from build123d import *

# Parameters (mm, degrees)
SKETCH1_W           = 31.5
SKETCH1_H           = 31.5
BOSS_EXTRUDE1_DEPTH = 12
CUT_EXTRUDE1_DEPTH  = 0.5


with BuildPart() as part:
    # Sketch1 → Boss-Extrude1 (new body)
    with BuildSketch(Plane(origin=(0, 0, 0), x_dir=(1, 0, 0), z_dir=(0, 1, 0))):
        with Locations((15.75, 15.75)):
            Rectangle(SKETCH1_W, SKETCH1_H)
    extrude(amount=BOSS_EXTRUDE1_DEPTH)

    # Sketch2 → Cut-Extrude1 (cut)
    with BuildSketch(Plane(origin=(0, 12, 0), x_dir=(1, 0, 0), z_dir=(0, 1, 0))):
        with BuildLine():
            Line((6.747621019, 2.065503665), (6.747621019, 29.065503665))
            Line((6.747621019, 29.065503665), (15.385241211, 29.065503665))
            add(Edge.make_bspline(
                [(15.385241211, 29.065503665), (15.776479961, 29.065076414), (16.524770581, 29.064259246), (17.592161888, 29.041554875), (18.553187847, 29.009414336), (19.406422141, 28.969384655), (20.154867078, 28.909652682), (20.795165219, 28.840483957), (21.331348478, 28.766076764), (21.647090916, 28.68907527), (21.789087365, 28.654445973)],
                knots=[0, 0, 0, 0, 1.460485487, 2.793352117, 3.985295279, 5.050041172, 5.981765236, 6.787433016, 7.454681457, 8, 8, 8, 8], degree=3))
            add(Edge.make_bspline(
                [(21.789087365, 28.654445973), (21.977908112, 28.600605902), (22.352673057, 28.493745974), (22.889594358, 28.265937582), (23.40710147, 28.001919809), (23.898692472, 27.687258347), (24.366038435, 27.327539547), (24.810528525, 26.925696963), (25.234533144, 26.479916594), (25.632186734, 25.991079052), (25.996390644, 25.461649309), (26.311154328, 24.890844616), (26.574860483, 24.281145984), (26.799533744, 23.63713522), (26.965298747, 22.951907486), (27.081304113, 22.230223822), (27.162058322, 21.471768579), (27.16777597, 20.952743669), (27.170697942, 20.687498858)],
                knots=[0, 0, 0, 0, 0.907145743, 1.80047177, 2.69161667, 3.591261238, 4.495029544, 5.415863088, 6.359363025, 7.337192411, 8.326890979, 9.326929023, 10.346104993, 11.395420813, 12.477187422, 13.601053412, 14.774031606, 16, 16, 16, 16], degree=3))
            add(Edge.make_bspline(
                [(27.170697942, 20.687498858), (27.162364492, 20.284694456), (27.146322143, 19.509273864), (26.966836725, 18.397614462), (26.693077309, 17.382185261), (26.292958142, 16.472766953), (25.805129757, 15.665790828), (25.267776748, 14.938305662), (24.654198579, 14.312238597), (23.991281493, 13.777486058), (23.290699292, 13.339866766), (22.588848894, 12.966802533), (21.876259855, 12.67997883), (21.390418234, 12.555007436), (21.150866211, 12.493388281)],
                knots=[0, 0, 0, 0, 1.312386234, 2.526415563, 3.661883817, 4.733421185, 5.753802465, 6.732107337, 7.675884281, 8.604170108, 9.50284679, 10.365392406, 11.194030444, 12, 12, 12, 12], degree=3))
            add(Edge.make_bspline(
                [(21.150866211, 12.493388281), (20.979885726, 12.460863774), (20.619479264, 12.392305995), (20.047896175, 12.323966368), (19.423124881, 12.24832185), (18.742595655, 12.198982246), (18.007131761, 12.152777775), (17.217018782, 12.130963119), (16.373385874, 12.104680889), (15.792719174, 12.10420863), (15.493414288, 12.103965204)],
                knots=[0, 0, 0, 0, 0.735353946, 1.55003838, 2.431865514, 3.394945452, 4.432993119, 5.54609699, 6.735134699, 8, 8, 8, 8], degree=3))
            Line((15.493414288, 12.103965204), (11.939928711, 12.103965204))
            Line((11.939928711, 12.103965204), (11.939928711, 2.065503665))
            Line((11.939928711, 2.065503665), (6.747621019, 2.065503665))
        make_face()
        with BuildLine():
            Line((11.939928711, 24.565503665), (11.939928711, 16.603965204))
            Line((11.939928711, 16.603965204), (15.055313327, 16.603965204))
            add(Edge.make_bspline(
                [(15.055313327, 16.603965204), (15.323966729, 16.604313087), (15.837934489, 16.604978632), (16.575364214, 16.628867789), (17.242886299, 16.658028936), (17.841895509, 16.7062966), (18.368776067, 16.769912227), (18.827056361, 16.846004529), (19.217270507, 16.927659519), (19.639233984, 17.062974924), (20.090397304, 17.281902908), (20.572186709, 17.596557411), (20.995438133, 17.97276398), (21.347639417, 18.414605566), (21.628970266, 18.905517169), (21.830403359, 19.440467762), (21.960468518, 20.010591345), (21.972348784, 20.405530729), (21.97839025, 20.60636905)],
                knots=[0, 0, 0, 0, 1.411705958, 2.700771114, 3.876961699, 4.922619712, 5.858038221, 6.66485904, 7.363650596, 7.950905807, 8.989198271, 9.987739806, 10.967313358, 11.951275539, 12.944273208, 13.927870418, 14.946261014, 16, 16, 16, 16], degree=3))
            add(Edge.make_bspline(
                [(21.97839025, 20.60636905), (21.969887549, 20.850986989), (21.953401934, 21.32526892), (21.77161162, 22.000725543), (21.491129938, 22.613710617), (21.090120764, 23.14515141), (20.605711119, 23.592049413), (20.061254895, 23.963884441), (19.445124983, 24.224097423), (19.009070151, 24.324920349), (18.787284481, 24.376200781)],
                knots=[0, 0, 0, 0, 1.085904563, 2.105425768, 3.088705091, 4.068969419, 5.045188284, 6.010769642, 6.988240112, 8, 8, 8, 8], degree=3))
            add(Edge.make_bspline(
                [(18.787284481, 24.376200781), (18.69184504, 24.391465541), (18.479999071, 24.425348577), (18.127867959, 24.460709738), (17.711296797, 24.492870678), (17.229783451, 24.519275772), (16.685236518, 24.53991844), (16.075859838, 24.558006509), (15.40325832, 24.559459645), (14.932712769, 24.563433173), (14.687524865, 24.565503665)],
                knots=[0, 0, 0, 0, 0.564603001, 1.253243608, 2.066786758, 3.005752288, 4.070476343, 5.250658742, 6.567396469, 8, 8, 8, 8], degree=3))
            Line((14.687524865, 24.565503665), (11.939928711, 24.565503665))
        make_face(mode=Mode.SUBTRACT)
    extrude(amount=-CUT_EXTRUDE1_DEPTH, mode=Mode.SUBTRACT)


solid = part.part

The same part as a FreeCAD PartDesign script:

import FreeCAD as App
import Part
import Sketcher
Q = App.Units.Quantity


def add_polygon(sketch, points):
    """Adds a closed chain of lines whose ends are joined by coincident constraints."""
    first, n = sketch.GeometryCount, len(points)
    for a, b in zip(points, points[1:] + points[:1]):
        sketch.addGeometry(Part.LineSegment(App.Vector(*a, 0), App.Vector(*b, 0)), False)
    for i in range(n):
        sketch.addConstraint(Sketcher.Constraint("Coincident", first + i, 2, first + (i + 1) % n, 1))

doc = App.newDocument("Part")
body = doc.addObject("PartDesign::Body", "Body")

sketch1 = doc.addObject("Sketcher::SketchObject", "Sketch")
body.addObject(sketch1)
sketch1.AttachmentSupport = (doc.XZ_Plane, [""])
sketch1.MapMode = "FlatFace"
add_polygon(sketch1, [(0, -32), (0, 0), (32, 0), (32, -32)])
sketch1.addConstraint([
    Sketcher.Constraint("Vertical", 0),
    Sketcher.Constraint("Horizontal", 1),
    Sketcher.Constraint("Vertical", 2),
    Sketcher.Constraint("Horizontal", 3),
    Sketcher.Constraint("Coincident", 0, 2, -1, 1),
    Sketcher.Constraint("Equal", 3, 0),
    Sketcher.Constraint("DistanceX", 1, 1, 1, 2, Q("31.5 mm")),
])
pad1 = doc.addObject("PartDesign::Pad", "Pad")
body.addObject(pad1)
pad1.Profile = sketch1
pad1.Length = 12
pad1.Reversed = True

sketch2 = doc.addObject("Sketcher::SketchObject", "Sketch001")
body.addObject(sketch2)
sketch2.AttachmentSupport = (doc.XZ_Plane, [""])
sketch2.MapMode = "FlatFace"
sketch2.AttachmentOffset = App.Placement(App.Vector(0, 0, -12), App.Rotation())
sketch2.addGeometry([
    Part.LineSegment(App.Vector(6.747621, -29.065504, 0), App.Vector(6.747621, -2.065504, 0)),
    Part.LineSegment(App.Vector(6.747621, -2.065504, 0), App.Vector(11.939929, -2.065504, 0)),
    Part.LineSegment(App.Vector(11.939929, -2.065504, 0), App.Vector(11.939929, -12.103965, 0)),
    Part.LineSegment(App.Vector(11.939929, -12.103965, 0), App.Vector(15.493414, -12.103965, 0)),
    Part.BSplineCurve([App.Vector(21.150866, -12.493388, 0), App.Vector(20.979886, -12.460864, 0), App.Vector(20.619479, -12.392306, 0), App.Vector(20.047896, -12.323966, 0), App.Vector(19.423125, -12.248322, 0), App.Vector(18.742596, -12.198982, 0), App.Vector(18.007132, -12.152778, 0), App.Vector(17.217019, -12.130963, 0), App.Vector(16.373386, -12.104681, 0), App.Vector(15.792719, -12.104209, 0), App.Vector(15.493414, -12.103965, 0)], [4, 1, 1, 1, 1, 1, 1, 1, 4], [0, 0.735353946, 1.55003838, 2.431865514, 3.394945452, 4.432993119, 5.54609699, 6.735134699, 8], False, 3, [1, 1, 1, 1, 1, 1, 1, 1, 1, 1, 1], False),
    Part.BSplineCurve([App.Vector(27.170698, -20.687499, 0), App.Vector(27.162364, -20.284694, 0), App.Vector(27.146322, -19.509274, 0), App.Vector(26.966837, -18.397614, 0), App.Vector(26.693077, -17.382185, 0), App.Vector(26.292958, -16.472767, 0), App.Vector(25.80513, -15.665791, 0), App.Vector(25.267777, -14.938306, 0), App.Vector(24.654199, -14.312239, 0), App.Vector(23.991281, -13.777486, 0), App.Vector(23.290699, -13.339867, 0), App.Vector(22.588849, -12.966803, 0), App.Vector(21.87626, -12.679979, 0), App.Vector(21.390418, -12.555007, 0), App.Vector(21.150866, -12.493388, 0)], [4, 1, 1, 1, 1, 1, 1, 1, 1, 1, 1, 1, 4], [0, 1.312386234, 2.526415563, 3.661883817, 4.733421185, 5.753802465, 6.732107337, 7.675884281, 8.604170108, 9.50284679, 10.365392406, 11.194030444, 12], False, 3, [1, 1, 1, 1, 1, 1, 1, 1, 1, 1, 1, 1, 1, 1, 1], False),
    Part.BSplineCurve([App.Vector(21.789087, -28.654446, 0), App.Vector(21.977908, -28.600606, 0), App.Vector(22.352673, -28.493746, 0), App.Vector(22.889594, -28.265938, 0), App.Vector(23.407101, -28.00192, 0), App.Vector(23.898692, -27.687258, 0), App.Vector(24.366038, -27.32754, 0), App.Vector(24.810529, -26.925697, 0), App.Vector(25.234533, -26.479917, 0), App.Vector(25.632187, -25.991079, 0), App.Vector(25.996391, -25.461649, 0), App.Vector(26.311154, -24.890845, 0), App.Vector(26.57486, -24.281146, 0), App.Vector(26.799534, -23.637135, 0), App.Vector(26.965299, -22.951907, 0), App.Vector(27.081304, -22.230224, 0), App.Vector(27.162058, -21.471769, 0), App.Vector(27.167776, -20.952744, 0), App.Vector(27.170698, -20.687499, 0)], [4, 1, 1, 1, 1, 1, 1, 1, 1, 1, 1, 1, 1, 1, 1, 1, 4], [0, 0.907145743, 1.80047177, 2.69161667, 3.591261238, 4.495029544, 5.415863088, 6.359363025, 7.337192411, 8.326890979, 9.326929023, 10.346104993, 11.395420813, 12.477187422, 13.601053412, 14.774031606, 16], False, 3, [1, 1, 1, 1, 1, 1, 1, 1, 1, 1, 1, 1, 1, 1, 1, 1, 1, 1, 1], False),
    Part.BSplineCurve([App.Vector(15.385241, -29.065504, 0), App.Vector(15.77648, -29.065076, 0), App.Vector(16.524771, -29.064259, 0), App.Vector(17.592162, -29.041555, 0), App.Vector(18.553188, -29.009414, 0), App.Vector(19.406422, -28.969385, 0), App.Vector(20.154867, -28.909653, 0), App.Vector(20.795165, -28.840484, 0), App.Vector(21.331348, -28.766077, 0), App.Vector(21.647091, -28.689075, 0), App.Vector(21.789087, -28.654446, 0)], [4, 1, 1, 1, 1, 1, 1, 1, 4], [0, 1.460485487, 2.793352117, 3.985295279, 5.050041172, 5.981765236, 6.787433016, 7.454681457, 8], False, 3, [1, 1, 1, 1, 1, 1, 1, 1, 1, 1, 1], False),
    Part.LineSegment(App.Vector(15.385241, -29.065504, 0), App.Vector(6.747621, -29.065504, 0)),
    Part.LineSegment(App.Vector(11.939929, -24.565504, 0), App.Vector(14.687525, -24.565504, 0)),
    Part.BSplineCurve([App.Vector(18.787284, -24.376201, 0), App.Vector(18.691845, -24.391466, 0), App.Vector(18.479999, -24.425349, 0), App.Vector(18.127868, -24.46071, 0), App.Vector(17.711297, -24.492871, 0), App.Vector(17.229783, -24.519276, 0), App.Vector(16.685237, -24.539918, 0), App.Vector(16.07586, -24.558007, 0), App.Vector(15.403258, -24.55946, 0), App.Vector(14.932713, -24.563433, 0), App.Vector(14.687525, -24.565504, 0)], [4, 1, 1, 1, 1, 1, 1, 1, 4], [0, 0.564603001, 1.253243608, 2.066786758, 3.005752288, 4.070476343, 5.250658742, 6.567396469, 8], False, 3, [1, 1, 1, 1, 1, 1, 1, 1, 1, 1, 1], False),
    Part.BSplineCurve([App.Vector(21.97839, -20.606369, 0), App.Vector(21.969888, -20.850987, 0), App.Vector(21.953402, -21.325269, 0), App.Vector(21.771612, -22.000726, 0), App.Vector(21.49113, -22.613711, 0), App.Vector(21.090121, -23.145151, 0), App.Vector(20.605711, -23.592049, 0), App.Vector(20.061255, -23.963884, 0), App.Vector(19.445125, -24.224097, 0), App.Vector(19.00907, -24.32492, 0), App.Vector(18.787284, -24.376201, 0)], [4, 1, 1, 1, 1, 1, 1, 1, 4], [0, 1.085904563, 2.105425768, 3.088705091, 4.068969419, 5.045188284, 6.010769642, 6.988240112, 8], False, 3, [1, 1, 1, 1, 1, 1, 1, 1, 1, 1, 1], False),
    Part.BSplineCurve([App.Vector(15.055313, -16.603965, 0), App.Vector(15.323967, -16.604313, 0), App.Vector(15.837934, -16.604979, 0), App.Vector(16.575364, -16.628868, 0), App.Vector(17.242886, -16.658029, 0), App.Vector(17.841896, -16.706297, 0), App.Vector(18.368776, -16.769912, 0), App.Vector(18.827056, -16.846005, 0), App.Vector(19.217271, -16.92766, 0), App.Vector(19.639234, -17.062975, 0), App.Vector(20.090397, -17.281903, 0), App.Vector(20.572187, -17.596557, 0), App.Vector(20.995438, -17.972764, 0), App.Vector(21.347639, -18.414606, 0), App.Vector(21.62897, -18.905517, 0), App.Vector(21.830403, -19.440468, 0), App.Vector(21.960469, -20.010591, 0), App.Vector(21.972349, -20.405531, 0), App.Vector(21.97839, -20.606369, 0)], [4, 1, 1, 1, 1, 1, 1, 1, 1, 1, 1, 1, 1, 1, 1, 1, 4], [0, 1.411705958, 2.700771114, 3.876961699, 4.922619712, 5.858038221, 6.66485904, 7.363650596, 7.950905807, 8.989198271, 9.987739806, 10.967313358, 11.951275539, 12.944273208, 13.927870418, 14.946261014, 16], False, 3, [1, 1, 1, 1, 1, 1, 1, 1, 1, 1, 1, 1, 1, 1, 1, 1, 1, 1, 1], False),
    Part.LineSegment(App.Vector(15.055313, -16.603965, 0), App.Vector(11.939929, -16.603965, 0)),
    Part.LineSegment(App.Vector(11.939929, -16.603965, 0), App.Vector(11.939929, -24.565504, 0)),
], False)
sketch2.addConstraint([
    Sketcher.Constraint("Block", 4),
    Sketcher.Constraint("Block", 5),
    Sketcher.Constraint("Block", 6),
    Sketcher.Constraint("Block", 7),
    Sketcher.Constraint("Block", 10),
    Sketcher.Constraint("Block", 11),
    Sketcher.Constraint("Block", 12),
    Sketcher.Constraint("Coincident", 0, 2, 1, 1),
    Sketcher.Constraint("Coincident", 1, 2, 2, 1),
    Sketcher.Constraint("Coincident", 2, 2, 3, 1),
    Sketcher.Constraint("Coincident", 3, 2, 4, 2),
    Sketcher.Constraint("Coincident", 7, 1, 8, 1),
    Sketcher.Constraint("Coincident", 8, 2, 0, 1),
    Sketcher.Constraint("Coincident", 9, 2, 10, 2),
    Sketcher.Constraint("Coincident", 12, 1, 13, 1),
    Sketcher.Constraint("Coincident", 13, 2, 14, 1),
    Sketcher.Constraint("Coincident", 14, 2, 9, 1),
    Sketcher.Constraint("Vertical", 0),
    Sketcher.Constraint("Horizontal", 1),
    Sketcher.Constraint("Vertical", 2),
    Sketcher.Constraint("Horizontal", 3),
    Sketcher.Constraint("Horizontal", 8),
    Sketcher.Constraint("Horizontal", 9),
    Sketcher.Constraint("Horizontal", 13),
    Sketcher.Constraint("Vertical", 14),
    Sketcher.Constraint("Vertical", 2, 2, 13, 2),
    Sketcher.Constraint("DistanceY", 0, 1, 0, 2, Q("27 mm")),
    Sketcher.Constraint("DistanceX", 8, 2, 8, 1, Q("8.63762 mm")),
    Sketcher.Constraint("DistanceX", 1, 1, 1, 2, Q("5.192308 mm")),
])
pocket1 = doc.addObject("PartDesign::Pocket", "Pocket")
body.addObject(pocket1)
pocket1.Profile = sketch2
pocket1.Length = 0.5
pocket1.Reversed = True

doc.recompute()
